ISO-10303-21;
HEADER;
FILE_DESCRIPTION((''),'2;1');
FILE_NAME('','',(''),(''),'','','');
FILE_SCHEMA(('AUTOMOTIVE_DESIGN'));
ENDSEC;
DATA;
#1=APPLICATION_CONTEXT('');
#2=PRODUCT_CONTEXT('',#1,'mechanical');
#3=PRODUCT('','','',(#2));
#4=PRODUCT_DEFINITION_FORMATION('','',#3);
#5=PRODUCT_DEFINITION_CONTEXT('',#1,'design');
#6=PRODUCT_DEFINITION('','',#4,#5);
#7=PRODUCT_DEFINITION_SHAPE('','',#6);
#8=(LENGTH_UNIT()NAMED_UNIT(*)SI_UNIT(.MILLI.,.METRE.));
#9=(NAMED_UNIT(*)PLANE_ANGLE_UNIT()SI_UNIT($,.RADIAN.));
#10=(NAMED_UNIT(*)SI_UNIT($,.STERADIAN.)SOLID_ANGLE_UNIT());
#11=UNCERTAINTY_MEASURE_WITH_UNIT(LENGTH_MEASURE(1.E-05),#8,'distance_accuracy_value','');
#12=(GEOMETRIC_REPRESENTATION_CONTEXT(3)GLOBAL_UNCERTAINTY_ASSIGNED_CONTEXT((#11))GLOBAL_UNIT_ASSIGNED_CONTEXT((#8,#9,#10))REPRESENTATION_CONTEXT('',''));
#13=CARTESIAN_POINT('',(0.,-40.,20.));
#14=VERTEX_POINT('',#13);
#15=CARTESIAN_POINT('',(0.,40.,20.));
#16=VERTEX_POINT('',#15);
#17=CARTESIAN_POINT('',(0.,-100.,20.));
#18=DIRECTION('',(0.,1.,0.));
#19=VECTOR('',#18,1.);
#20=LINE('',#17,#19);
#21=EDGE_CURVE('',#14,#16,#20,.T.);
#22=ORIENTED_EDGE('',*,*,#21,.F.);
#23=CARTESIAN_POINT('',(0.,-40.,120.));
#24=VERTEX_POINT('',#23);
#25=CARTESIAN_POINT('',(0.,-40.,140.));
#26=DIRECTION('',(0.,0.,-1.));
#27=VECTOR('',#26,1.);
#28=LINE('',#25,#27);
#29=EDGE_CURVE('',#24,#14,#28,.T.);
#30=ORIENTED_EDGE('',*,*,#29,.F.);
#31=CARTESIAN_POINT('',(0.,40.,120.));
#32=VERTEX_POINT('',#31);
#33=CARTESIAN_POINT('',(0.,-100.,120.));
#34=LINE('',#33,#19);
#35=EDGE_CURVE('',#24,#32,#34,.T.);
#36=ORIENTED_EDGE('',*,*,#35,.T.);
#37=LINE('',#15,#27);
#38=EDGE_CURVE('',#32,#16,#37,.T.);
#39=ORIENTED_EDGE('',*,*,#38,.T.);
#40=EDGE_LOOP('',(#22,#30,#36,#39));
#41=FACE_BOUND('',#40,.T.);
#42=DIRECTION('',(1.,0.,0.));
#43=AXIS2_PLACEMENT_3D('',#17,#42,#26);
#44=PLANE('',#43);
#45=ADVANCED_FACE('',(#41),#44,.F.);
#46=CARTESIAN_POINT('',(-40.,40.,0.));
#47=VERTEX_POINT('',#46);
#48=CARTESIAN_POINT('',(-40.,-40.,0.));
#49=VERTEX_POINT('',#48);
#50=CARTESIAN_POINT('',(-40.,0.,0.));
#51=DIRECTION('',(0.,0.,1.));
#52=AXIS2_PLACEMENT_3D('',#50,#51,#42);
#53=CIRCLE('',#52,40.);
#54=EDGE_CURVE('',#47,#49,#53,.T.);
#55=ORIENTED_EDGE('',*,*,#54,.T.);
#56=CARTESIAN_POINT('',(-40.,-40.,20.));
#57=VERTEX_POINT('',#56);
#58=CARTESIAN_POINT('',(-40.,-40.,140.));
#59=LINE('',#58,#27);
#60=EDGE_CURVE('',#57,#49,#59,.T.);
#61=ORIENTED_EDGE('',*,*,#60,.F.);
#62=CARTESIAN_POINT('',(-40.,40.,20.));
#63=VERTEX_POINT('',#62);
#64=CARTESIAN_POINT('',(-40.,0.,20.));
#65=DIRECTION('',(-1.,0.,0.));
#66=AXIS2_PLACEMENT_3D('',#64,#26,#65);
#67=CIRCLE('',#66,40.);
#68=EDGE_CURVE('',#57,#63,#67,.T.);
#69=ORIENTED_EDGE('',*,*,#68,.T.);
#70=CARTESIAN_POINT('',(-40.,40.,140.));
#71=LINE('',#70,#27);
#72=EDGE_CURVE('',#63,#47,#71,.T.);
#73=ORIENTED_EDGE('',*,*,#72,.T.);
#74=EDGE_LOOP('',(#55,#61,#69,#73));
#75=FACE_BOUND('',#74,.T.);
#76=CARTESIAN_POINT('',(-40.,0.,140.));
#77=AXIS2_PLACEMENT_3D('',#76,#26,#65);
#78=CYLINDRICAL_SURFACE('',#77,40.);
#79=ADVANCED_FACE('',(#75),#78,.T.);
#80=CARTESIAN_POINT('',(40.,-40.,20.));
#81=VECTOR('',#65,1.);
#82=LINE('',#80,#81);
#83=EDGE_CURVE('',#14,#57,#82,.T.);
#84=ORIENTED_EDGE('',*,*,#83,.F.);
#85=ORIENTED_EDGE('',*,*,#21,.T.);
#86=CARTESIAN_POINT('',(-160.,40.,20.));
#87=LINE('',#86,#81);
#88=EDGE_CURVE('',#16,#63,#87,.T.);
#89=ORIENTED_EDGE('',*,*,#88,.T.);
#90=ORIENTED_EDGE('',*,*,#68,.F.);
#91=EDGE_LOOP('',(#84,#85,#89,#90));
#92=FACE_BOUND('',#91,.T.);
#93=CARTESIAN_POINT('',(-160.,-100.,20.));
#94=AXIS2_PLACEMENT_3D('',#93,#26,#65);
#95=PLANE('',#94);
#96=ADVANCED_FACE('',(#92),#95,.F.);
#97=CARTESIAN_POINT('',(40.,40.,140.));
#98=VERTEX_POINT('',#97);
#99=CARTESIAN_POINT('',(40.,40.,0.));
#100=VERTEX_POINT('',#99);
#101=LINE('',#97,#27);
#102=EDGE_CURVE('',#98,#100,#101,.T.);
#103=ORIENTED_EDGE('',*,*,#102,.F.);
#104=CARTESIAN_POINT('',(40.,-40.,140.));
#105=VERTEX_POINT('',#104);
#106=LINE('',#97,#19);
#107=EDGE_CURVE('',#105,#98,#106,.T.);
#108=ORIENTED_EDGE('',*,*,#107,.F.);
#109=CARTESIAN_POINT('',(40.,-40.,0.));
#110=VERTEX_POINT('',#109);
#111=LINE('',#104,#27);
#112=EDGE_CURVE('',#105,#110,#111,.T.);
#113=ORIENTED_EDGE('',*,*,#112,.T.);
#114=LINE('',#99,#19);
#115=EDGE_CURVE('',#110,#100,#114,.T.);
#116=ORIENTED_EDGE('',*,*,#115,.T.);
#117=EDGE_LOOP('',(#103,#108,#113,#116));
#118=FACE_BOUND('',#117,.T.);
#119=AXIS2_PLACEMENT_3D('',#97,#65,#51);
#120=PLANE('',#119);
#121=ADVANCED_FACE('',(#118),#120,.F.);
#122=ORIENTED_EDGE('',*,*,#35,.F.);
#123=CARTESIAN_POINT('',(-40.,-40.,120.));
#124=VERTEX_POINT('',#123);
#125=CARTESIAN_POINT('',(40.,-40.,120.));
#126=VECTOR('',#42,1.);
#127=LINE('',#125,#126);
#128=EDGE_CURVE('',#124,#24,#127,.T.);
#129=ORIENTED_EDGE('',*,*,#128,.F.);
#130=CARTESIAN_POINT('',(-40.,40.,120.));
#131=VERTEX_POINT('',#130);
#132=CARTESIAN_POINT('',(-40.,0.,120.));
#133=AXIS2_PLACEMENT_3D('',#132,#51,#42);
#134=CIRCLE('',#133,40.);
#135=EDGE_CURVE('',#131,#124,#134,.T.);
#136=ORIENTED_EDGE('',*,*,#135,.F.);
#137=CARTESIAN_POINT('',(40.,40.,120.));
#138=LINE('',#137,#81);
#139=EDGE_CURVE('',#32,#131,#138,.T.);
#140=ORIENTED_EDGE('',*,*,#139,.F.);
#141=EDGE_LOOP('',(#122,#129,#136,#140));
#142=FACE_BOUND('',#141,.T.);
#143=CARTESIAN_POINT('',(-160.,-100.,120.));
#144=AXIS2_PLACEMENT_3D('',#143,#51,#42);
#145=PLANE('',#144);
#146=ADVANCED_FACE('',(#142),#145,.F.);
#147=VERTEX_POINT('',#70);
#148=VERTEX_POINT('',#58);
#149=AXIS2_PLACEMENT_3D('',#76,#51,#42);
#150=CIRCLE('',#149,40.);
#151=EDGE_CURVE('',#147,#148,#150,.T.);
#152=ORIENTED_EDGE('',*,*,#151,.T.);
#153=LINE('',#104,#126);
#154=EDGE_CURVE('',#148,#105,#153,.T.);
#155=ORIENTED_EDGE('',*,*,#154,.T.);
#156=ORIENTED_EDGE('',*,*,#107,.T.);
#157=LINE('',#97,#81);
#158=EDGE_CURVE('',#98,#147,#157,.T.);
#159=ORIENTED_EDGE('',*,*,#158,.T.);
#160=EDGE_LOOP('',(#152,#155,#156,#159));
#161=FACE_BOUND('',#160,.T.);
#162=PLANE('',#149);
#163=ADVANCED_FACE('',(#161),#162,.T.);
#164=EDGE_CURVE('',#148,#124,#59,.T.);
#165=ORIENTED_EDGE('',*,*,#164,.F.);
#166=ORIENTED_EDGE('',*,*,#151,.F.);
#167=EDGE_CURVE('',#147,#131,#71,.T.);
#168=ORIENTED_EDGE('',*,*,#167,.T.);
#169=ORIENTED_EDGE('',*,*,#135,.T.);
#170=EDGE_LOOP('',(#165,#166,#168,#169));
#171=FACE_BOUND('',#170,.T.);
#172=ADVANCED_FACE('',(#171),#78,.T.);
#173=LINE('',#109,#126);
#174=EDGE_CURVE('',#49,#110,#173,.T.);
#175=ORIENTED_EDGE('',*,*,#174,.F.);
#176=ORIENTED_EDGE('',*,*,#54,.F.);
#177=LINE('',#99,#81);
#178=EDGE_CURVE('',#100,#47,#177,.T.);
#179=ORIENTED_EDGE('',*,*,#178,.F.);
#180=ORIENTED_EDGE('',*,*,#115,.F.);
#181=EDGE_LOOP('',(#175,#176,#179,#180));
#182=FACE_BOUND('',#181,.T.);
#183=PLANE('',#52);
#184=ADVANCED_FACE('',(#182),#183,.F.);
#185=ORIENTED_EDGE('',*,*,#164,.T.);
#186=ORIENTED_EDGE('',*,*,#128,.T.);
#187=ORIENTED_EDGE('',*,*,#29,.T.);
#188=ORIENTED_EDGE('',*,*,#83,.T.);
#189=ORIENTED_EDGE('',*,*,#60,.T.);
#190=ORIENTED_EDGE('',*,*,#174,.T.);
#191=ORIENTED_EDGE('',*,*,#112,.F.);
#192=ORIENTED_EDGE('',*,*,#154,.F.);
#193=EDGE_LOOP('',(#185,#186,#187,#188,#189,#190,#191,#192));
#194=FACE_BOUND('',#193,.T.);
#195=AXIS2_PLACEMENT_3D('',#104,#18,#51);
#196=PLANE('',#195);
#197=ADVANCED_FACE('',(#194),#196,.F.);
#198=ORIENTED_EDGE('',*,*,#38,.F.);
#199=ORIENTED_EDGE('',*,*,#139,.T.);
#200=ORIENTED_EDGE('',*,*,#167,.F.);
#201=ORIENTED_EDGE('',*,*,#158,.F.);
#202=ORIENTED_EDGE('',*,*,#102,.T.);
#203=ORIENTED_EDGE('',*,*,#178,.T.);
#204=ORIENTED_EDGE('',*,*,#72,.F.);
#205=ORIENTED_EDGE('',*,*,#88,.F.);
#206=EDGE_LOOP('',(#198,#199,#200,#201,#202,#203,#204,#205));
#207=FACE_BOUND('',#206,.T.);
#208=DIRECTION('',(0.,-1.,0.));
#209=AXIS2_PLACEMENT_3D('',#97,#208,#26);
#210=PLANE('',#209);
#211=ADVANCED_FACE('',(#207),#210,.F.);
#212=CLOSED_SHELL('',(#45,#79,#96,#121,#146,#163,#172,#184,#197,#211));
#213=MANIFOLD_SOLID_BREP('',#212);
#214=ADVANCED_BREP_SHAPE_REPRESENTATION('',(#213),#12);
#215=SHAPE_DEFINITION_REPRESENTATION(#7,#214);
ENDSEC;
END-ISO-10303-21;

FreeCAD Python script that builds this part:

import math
import FreeCAD as App
import Part
import Sketcher

doc = App.newDocument("Part")
body = doc.addObject("PartDesign::Body", "Body")

sketch1 = body.newObject("Sketcher::SketchObject", "Sketch")
sketch1.AttachmentSupport = (doc.getObject("XY_Plane"), [""])
sketch1.MapMode = "FlatFace"
sketch1.addGeometry(Part.LineSegment(App.Vector(40, 40, 0), App.Vector(-40, 40, 0)), False)
sketch1.addGeometry(Part.ArcOfCircle(Part.Circle(App.Vector(-40, 0, 0), App.Vector(0, 0, 1), 40), math.radians(90), math.radians(270)), False)
sketch1.addGeometry(Part.LineSegment(App.Vector(-40, -40, 0), App.Vector(40, -40, 0)), False)
sketch1.addGeometry(Part.LineSegment(App.Vector(40, -40, 0), App.Vector(40, 40, 0)), False)
sketch1.addConstraint(Sketcher.Constraint("Tangent", 0, 2, 1, 1))
sketch1.addConstraint(Sketcher.Constraint("Tangent", 1, 2, 2, 1))
sketch1.addConstraint(Sketcher.Constraint("Coincident", 2, 2, 3, 1))
sketch1.addConstraint(Sketcher.Constraint("Coincident", 3, 2, 0, 1))
sketch1.addConstraint(Sketcher.Constraint("Horizontal", 0))
sketch1.addConstraint(Sketcher.Constraint("Horizontal", 2))
sketch1.addConstraint(Sketcher.Constraint("Vertical", 3))
sketch1.addConstraint(Sketcher.Constraint("Symmetric", 0, 2, 2, 2, -1, 1))
sketch1.addConstraint(Sketcher.Constraint("Equal", 2, 3))
sketch1.addConstraint(Sketcher.Constraint("Radius", 1, 40.0))
pad1 = body.newObject("PartDesign::Pad", "Pad")
pad1.Profile = sketch1
pad1.Length = 140

sketch2 = body.newObject("Sketcher::SketchObject", "Sketch001")
sketch2.AttachmentSupport = (doc.getObject("XZ_Plane"), [""])
sketch2.MapMode = "FlatFace"
sketch2.AttachmentOffset = App.Placement(App.Vector(0, 0, -40), App.Rotation())
sketch2.addGeometry(Part.LineSegment(App.Vector(-160, 20, 0), App.Vector(-160, 120, 0)), False)
sketch2.addGeometry(Part.LineSegment(App.Vector(-160, 120, 0), App.Vector(0, 120, 0)), False)
sketch2.addGeometry(Part.LineSegment(App.Vector(0, 120, 0), App.Vector(0, 20, 0)), False)
sketch2.addGeometry(Part.LineSegment(App.Vector(0, 20, 0), App.Vector(-160, 20, 0)), False)
sketch2.addConstraint(Sketcher.Constraint("Coincident", 0, 2, 1, 1))
sketch2.addConstraint(Sketcher.Constraint("Coincident", 1, 2, 2, 1))
sketch2.addConstraint(Sketcher.Constraint("Coincident", 2, 2, 3, 1))
sketch2.addConstraint(Sketcher.Constraint("Coincident", 3, 2, 0, 1))
sketch2.addConstraint(Sketcher.Constraint("Vertical", 0))
sketch2.addConstraint(Sketcher.Constraint("Horizontal", 1))
sketch2.addConstraint(Sketcher.Constraint("Vertical", 2))
sketch2.addConstraint(Sketcher.Constraint("Horizontal", 3))
sketch2.addConstraint(Sketcher.Constraint("PointOnObject", 1, 2, -2))
sketch2.addConstraint(Sketcher.Constraint("DistanceX", 1, 1, 1, 2, 160.0))
sketch2.addConstraint(Sketcher.Constraint("DistanceY", 0, 1, 0, 2, 100.0))
sketch2.addConstraint(Sketcher.Constraint("DistanceY", -1, 1, 0, 2, 120.0))
pocket1 = body.newObject("PartDesign::Pocket", "Pocket")
pocket1.Profile = sketch2
pocket1.Length = 140
pocket1.Reversed = True

doc.recompute()
